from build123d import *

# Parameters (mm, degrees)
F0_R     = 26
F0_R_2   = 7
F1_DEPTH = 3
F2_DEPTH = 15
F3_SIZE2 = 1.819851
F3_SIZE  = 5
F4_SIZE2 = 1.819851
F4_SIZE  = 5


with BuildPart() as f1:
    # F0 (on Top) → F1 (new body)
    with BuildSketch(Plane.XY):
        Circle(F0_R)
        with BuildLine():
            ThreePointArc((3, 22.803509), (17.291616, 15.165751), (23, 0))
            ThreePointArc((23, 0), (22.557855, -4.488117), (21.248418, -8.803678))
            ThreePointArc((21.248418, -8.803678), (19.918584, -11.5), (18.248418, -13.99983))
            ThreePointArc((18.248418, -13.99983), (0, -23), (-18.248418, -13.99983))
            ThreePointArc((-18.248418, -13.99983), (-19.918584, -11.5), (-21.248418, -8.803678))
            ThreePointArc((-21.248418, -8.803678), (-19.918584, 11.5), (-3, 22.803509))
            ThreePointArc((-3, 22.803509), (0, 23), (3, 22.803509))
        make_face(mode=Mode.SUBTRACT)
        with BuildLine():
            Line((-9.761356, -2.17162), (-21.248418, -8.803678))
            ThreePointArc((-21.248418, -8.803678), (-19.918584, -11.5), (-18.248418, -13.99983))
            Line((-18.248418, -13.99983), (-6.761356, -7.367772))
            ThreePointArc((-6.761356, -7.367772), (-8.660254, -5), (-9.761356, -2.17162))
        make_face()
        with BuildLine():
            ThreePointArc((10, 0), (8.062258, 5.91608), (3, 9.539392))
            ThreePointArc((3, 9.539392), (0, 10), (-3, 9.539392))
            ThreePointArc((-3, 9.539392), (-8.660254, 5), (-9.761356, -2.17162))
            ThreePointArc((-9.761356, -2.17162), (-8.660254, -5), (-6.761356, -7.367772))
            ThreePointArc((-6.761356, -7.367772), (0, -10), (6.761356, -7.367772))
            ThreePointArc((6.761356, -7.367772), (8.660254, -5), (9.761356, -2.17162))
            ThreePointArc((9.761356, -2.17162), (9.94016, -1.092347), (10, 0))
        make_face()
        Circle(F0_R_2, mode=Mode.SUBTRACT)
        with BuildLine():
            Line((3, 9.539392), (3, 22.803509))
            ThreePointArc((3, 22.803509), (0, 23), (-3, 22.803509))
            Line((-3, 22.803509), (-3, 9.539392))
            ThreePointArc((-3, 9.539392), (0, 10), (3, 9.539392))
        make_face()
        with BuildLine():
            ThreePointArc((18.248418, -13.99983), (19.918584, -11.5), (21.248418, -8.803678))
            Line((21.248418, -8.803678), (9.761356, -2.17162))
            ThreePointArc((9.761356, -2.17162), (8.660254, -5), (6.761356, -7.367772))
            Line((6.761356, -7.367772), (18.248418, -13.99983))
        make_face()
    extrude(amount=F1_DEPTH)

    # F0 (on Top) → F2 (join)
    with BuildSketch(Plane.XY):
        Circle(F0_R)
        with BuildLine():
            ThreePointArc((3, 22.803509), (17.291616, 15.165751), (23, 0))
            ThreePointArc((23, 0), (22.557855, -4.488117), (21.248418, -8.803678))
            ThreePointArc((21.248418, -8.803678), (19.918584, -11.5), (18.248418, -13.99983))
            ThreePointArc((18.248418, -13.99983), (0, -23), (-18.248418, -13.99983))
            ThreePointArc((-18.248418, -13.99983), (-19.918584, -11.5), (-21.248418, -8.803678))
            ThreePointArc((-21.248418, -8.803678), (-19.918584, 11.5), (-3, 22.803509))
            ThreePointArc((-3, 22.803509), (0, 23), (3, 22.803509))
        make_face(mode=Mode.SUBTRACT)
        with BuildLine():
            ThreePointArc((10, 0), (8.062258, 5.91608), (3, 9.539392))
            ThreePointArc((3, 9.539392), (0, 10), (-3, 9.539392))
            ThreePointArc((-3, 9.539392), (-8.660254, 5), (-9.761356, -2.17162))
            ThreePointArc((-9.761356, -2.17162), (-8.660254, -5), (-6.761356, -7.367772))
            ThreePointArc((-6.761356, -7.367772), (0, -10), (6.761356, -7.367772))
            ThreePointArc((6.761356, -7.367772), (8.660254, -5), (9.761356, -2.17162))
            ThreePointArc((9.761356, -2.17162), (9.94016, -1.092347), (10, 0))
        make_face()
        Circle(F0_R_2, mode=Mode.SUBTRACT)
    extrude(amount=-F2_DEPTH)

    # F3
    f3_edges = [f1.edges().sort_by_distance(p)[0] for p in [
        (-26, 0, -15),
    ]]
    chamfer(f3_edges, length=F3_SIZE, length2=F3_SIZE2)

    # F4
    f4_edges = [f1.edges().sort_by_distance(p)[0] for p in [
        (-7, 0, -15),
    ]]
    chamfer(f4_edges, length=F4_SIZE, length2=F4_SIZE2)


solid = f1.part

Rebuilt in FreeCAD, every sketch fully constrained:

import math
import FreeCAD as App
import Part
import Sketcher
from FreeCAD import Vector
Q = App.Units.Quantity


def edges_at(feature, points):
    """Names of the edges that pass closest to the given points."""
    edges = feature.Shape.Edges
    near = lambda p: min(range(len(edges)), key=lambda i: edges[i].distToShape(Part.Vertex(*p))[0])
    return sorted({f"Edge{near(p) + 1}" for p in points})

doc = App.newDocument("Part")
body = doc.addObject("PartDesign::Body", "Body")

# Sketch on XY plane
sketch1 = body.newObject("Sketcher::SketchObject", "Sketch")
sketch1.AttachmentSupport = (doc.getObject("XY_Plane"), [""])
sketch1.MapMode = "FlatFace"
sketch1.addGeometry(Part.Circle(Vector(0, 0, 0), Vector(0, 0, 1), 26), False)
sketch1.addGeometry(Part.Circle(Vector(0, 0, 0), Vector(0, 0, 1), 7), False)
sketch1.addGeometry(Part.ArcOfCircle(Part.Circle(Vector(0.000001, -0.000001, 0), Vector(0, 0, 1), 23.000001), math.radians(97.494721), math.radians(202.505279)), False)
sketch1.addGeometry(Part.LineSegment(Vector(-3, 22.803509, 0), Vector(-3, 9.539392, 0)), False)
sketch1.addGeometry(Part.ArcOfCircle(Part.Circle(Vector(0, 0, 0), Vector(0, 0, 1), 10), math.radians(107.457604), math.radians(192.542395)), False)
sketch1.addGeometry(Part.LineSegment(Vector(-9.761356, -2.17162, 0), Vector(-21.248418, -8.803678, 0)), False)
sketch1.addGeometry(Part.ArcOfCircle(Part.Circle(Vector(-0.000002, -0.000001, 0), Vector(0, 0, 1), 23.000002), math.radians(0.000003), math.radians(82.505279)), False)
sketch1.addGeometry(Part.ArcOfCircle(Part.Circle(Vector(0.00001, -0.000003, 0), Vector(0, 0, 1), 22.99999), math.radians(-22.505285), math.radians(0.000007)), False)
sketch1.addGeometry(Part.LineSegment(Vector(21.248418, -8.803678, 0), Vector(9.761356, -2.17162, 0)), False)
sketch1.addGeometry(Part.ArcOfCircle(Part.Circle(Vector(0.000005, -0.000002, 0), Vector(0, 0, 1), 9.999995), math.radians(-12.542395), math.radians(0.000009)), False)
sketch1.addGeometry(Part.ArcOfCircle(Part.Circle(Vector(0.000001, 0.000001, 0), Vector(0, 0, 1), 9.999999), math.radians(-0.000006), math.radians(72.542403)), False)
sketch1.addGeometry(Part.LineSegment(Vector(3, 9.539392, 0), Vector(3, 22.803509, 0)), False)
sketch1.addGeometry(Part.ArcOfCircle(Part.Circle(Vector(0, 0, 0), Vector(0, 0, 1), 23), math.radians(-142.505284), math.radians(-37.494716)), False)
sketch1.addGeometry(Part.LineSegment(Vector(-18.248418, -13.99983, 0), Vector(-6.761356, -7.367772, 0)), False)
sketch1.addGeometry(Part.ArcOfCircle(Part.Circle(Vector(0, 0, 0), Vector(0, 0, 1), 10), math.radians(-132.542399), math.radians(-47.457601)), False)
sketch1.addGeometry(Part.LineSegment(Vector(6.761356, -7.367772, 0), Vector(18.248418, -13.99983, 0)), False)
sketch1.addConstraint(Sketcher.Constraint("Coincident", 2, 1, 3, 1))
sketch1.addConstraint(Sketcher.Constraint("Coincident", 3, 2, 4, 1))
sketch1.addConstraint(Sketcher.Constraint("Coincident", 4, 2, 5, 1))
sketch1.addConstraint(Sketcher.Constraint("Coincident", 5, 2, 2, 2))
sketch1.addConstraint(Sketcher.Constraint("Tangent", 6, 1, 7, 2))
sketch1.addConstraint(Sketcher.Constraint("Coincident", 7, 1, 8, 1))
sketch1.addConstraint(Sketcher.Constraint("Coincident", 8, 2, 9, 1))
sketch1.addConstraint(Sketcher.Constraint("Tangent", 9, 2, 10, 1))
sketch1.addConstraint(Sketcher.Constraint("Coincident", 10, 2, 11, 1))
sketch1.addConstraint(Sketcher.Constraint("Coincident", 11, 2, 6, 2))
sketch1.addConstraint(Sketcher.Constraint("Coincident", 12, 1, 13, 1))
sketch1.addConstraint(Sketcher.Constraint("Coincident", 13, 2, 14, 1))
sketch1.addConstraint(Sketcher.Constraint("Coincident", 14, 2, 15, 1))
sketch1.addConstraint(Sketcher.Constraint("Coincident", 15, 2, 12, 2))
sketch1.addConstraint(Sketcher.Constraint("Vertical", 3))
sketch1.addConstraint(Sketcher.Constraint("Vertical", 11))
sketch1.addConstraint(Sketcher.Constraint("Coincident", 0, 3, -1, 1))
sketch1.addConstraint(Sketcher.Constraint("Coincident", 1, 3, -1, 1))
sketch1.addConstraint(Sketcher.Constraint("Coincident", 2, 3, -1, 1))
sketch1.addConstraint(Sketcher.Constraint("Coincident", 4, 3, -1, 1))
sketch1.addConstraint(Sketcher.Constraint("Coincident", 6, 3, -1, 1))
sketch1.addConstraint(Sketcher.Constraint("Coincident", 9, 3, -1, 1))
sketch1.addConstraint(Sketcher.Constraint("Coincident", 12, 3, -1, 1))
sketch1.addConstraint(Sketcher.Constraint("Coincident", 14, 3, -1, 1))
sketch1.addConstraint(Sketcher.Constraint("Equal", 2, 6))
sketch1.addConstraint(Sketcher.Constraint("Equal", 4, 10))
sketch1.addConstraint(Sketcher.Constraint("Equal", 6, 12))
sketch1.addConstraint(Sketcher.Constraint("Equal", 10, 14))
sketch1.addConstraint(Sketcher.Constraint("Symmetric", 5, 2, 7, 1, -2))
sketch1.addConstraint(Sketcher.Constraint("Symmetric", 4, 2, 8, 2, -2))
sketch1.addConstraint(Sketcher.Constraint("PointOnObject", 6, 1, -1))
sketch1.addConstraint(Sketcher.Constraint("PointOnObject", 9, 2, -1))
sketch1.addConstraint(Sketcher.Constraint("Parallel", 5, 13))
sketch1.addConstraint(Sketcher.Constraint("Parallel", 8, 15))
sketch1.addConstraint(Sketcher.Constraint("Horizontal", 3, 2, 10, 2))
sketch1.addConstraint(Sketcher.Constraint("Horizontal", 13, 2, 14, 2))
sketch1.addConstraint(Sketcher.Constraint("Equal", 8, 13))
sketch1.addConstraint(Sketcher.Constraint("Diameter", 0, Q("52 mm")))
sketch1.addConstraint(Sketcher.Constraint("Diameter", 1, Q("14 mm")))
sketch1.addConstraint(Sketcher.Constraint("Radius", 2, Q("23.000001 mm")))
sketch1.addConstraint(Sketcher.Constraint("Radius", 4, Q("10 mm")))
sketch1.addConstraint(Sketcher.Constraint("Angle", 5, Q("-150.000001 deg")))
sketch1.addConstraint(Sketcher.Constraint("DistanceX", 2, 1, -1, 1, Q("3 mm")))
sketch1.addConstraint(Sketcher.Constraint("DistanceX", 5, 2, 12, 1, Q("3 mm")))
pad1 = body.newObject("PartDesign::Pad", "Pad")
pad1.Profile = sketch1
pad1.Length = 3

# Sketch on XY plane
sketch2 = body.newObject("Sketcher::SketchObject", "Sketch001")
sketch2.AttachmentSupport = (doc.getObject("XY_Plane"), [""])
sketch2.MapMode = "FlatFace"
sketch2.addGeometry(Part.Circle(Vector(0, 0, 0), Vector(0, 0, 1), 26), False)
sketch2.addGeometry(Part.ArcOfCircle(Part.Circle(Vector(0, -0.000058, 0), Vector(0, 0, 1), 23.000058), math.radians(82.505301), math.radians(97.494699)), False)
sketch2.addGeometry(Part.ArcOfCircle(Part.Circle(Vector(-0.000002, -0.000001, 0), Vector(0, 0, 1), 23.000002), math.radians(0.000003), math.radians(82.505279)), False)
sketch2.addGeometry(Part.ArcOfCircle(Part.Circle(Vector(0.00001, -0.000003, 0), Vector(0, 0, 1), 22.99999), math.radians(-22.505285), math.radians(0.000007)), False)
sketch2.addGeometry(Part.ArcOfCircle(Part.Circle(Vector(-0.000039, 0.000024, 0), Vector(0, 0, 1), 23.000046), math.radians(-37.494704), math.radians(-22.5053)), False)
sketch2.addGeometry(Part.ArcOfCircle(Part.Circle(Vector(0, 0, 0), Vector(0, 0, 1), 23), math.radians(-142.505284), math.radians(-37.494716)), False)
sketch2.addGeometry(Part.ArcOfCircle(Part.Circle(Vector(0.000039, 0.000024, 0), Vector(0, 0, 1), 23.000046), math.radians(-157.4947), math.radians(-142.505296)), False)
sketch2.addGeometry(Part.ArcOfCircle(Part.Circle(Vector(0.000001, -0.000001, 0), Vector(0, 0, 1), 23.000001), math.radians(97.494721), math.radians(202.505279)), False)
sketch2.addGeometry(Part.ArcOfCircle(Part.Circle(Vector(0.000001, 0.000001, 0), Vector(0, 0, 1), 9.999999), math.radians(-0.000006), math.radians(72.542403)), False)
sketch2.addGeometry(Part.ArcOfCircle(Part.Circle(Vector(0, 0, 0), Vector(0, 0, 1), 10), math.radians(72.542396), math.radians(107.457604)), False)
sketch2.addGeometry(Part.ArcOfCircle(Part.Circle(Vector(0, 0, 0), Vector(0, 0, 1), 10), math.radians(107.457604), math.radians(192.542395)), False)
sketch2.addGeometry(Part.ArcOfCircle(Part.Circle(Vector(0.000002, 0.000002, 0), Vector(0, 0, 1), 10.000003), math.radians(-167.457595), math.radians(-132.542401)), False)
sketch2.addGeometry(Part.ArcOfCircle(Part.Circle(Vector(0, 0, 0), Vector(0, 0, 1), 10), math.radians(-132.542399), math.radians(-47.457601)), False)
sketch2.addGeometry(Part.ArcOfCircle(Part.Circle(Vector(-0.000002, 0.000002, 0), Vector(0, 0, 1), 10.000003), math.radians(-47.457599), math.radians(-12.542405)), False)
sketch2.addGeometry(Part.ArcOfCircle(Part.Circle(Vector(0.000005, -0.000002, 0), Vector(0, 0, 1), 9.999995), math.radians(-12.542395), math.radians(0.000009)), False)
sketch2.addGeometry(Part.Circle(Vector(0, 0, 0), Vector(0, 0, 1), 7), False)
sketch2.addConstraint(Sketcher.Constraint("Coincident", 1, 1, 2, 2))
sketch2.addConstraint(Sketcher.Constraint("Coincident", 2, 1, 3, 2))
sketch2.addConstraint(Sketcher.Constraint("Coincident", 3, 1, 4, 2))
sketch2.addConstraint(Sketcher.Constraint("Coincident", 4, 1, 5, 2))
sketch2.addConstraint(Sketcher.Constraint("Coincident", 5, 1, 6, 2))
sketch2.addConstraint(Sketcher.Constraint("Coincident", 6, 1, 7, 2))
sketch2.addConstraint(Sketcher.Constraint("Coincident", 7, 1, 1, 2))
sketch2.addConstraint(Sketcher.Constraint("Coincident", 8, 2, 9, 1))
sketch2.addConstraint(Sketcher.Constraint("Coincident", 9, 2, 10, 1))
sketch2.addConstraint(Sketcher.Constraint("Coincident", 10, 2, 11, 1))
sketch2.addConstraint(Sketcher.Constraint("Coincident", 11, 2, 12, 1))
sketch2.addConstraint(Sketcher.Constraint("Coincident", 12, 2, 13, 1))
sketch2.addConstraint(Sketcher.Constraint("Coincident", 13, 2, 14, 1))
sketch2.addConstraint(Sketcher.Constraint("Coincident", 14, 2, 8, 1))
sketch2.addConstraint(Sketcher.Constraint("Coincident", 0, 3, -1, 1))
sketch2.addConstraint(Sketcher.Constraint("Coincident", 2, 3, -1, 1))
sketch2.addConstraint(Sketcher.Constraint("Coincident", 5, 3, -1, 1))
sketch2.addConstraint(Sketcher.Constraint("Coincident", 7, 3, -1, 1))
sketch2.addConstraint(Sketcher.Constraint("Coincident", 8, 3, -1, 1))
sketch2.addConstraint(Sketcher.Constraint("Coincident", 9, 3, -1, 1))
sketch2.addConstraint(Sketcher.Constraint("Coincident", 10, 3, -1, 1))
sketch2.addConstraint(Sketcher.Constraint("Coincident", 11, 3, -1, 1))
sketch2.addConstraint(Sketcher.Constraint("Coincident", 12, 3, -1, 1))
sketch2.addConstraint(Sketcher.Constraint("Coincident", 13, 3, -1, 1))
sketch2.addConstraint(Sketcher.Constraint("Coincident", 15, 3, -1, 1))
sketch2.addConstraint(Sketcher.Constraint("PointOnObject", 1, 3, -2))
sketch2.addConstraint(Sketcher.Constraint("PointOnObject", 14, 3, -1))
sketch2.addConstraint(Sketcher.Constraint("PointOnObject", 2, 1, -1))
sketch2.addConstraint(Sketcher.Constraint("PointOnObject", 14, 2, -1))
sketch2.addConstraint(Sketcher.Constraint("Diameter", 0, Q("52 mm")))
sketch2.addConstraint(Sketcher.Constraint("Diameter", 15, Q("14 mm")))
sketch2.addConstraint(Sketcher.Constraint("Radius", 2, Q("23.000002 mm")))
sketch2.addConstraint(Sketcher.Constraint("Radius", 5, Q("23 mm")))
sketch2.addConstraint(Sketcher.Constraint("Radius", 8, Q("9.999999 mm")))
sketch2.addConstraint(Sketcher.Constraint("DistanceX", -1, 1, 1, 1, Q("3 mm")))
sketch2.addConstraint(Sketcher.Constraint("DistanceX", 7, 1, -1, 1, Q("3 mm")))
sketch2.addConstraint(Sketcher.Constraint("DistanceX", -1, 1, 8, 2, Q("3 mm")))
sketch2.addConstraint(Sketcher.Constraint("DistanceX", 9, 2, -1, 1, Q("3 mm")))
sketch2.addConstraint(Sketcher.Constraint("DistanceX", 4, 1, 3, 1, Q("3 mm")))
sketch2.addConstraint(Sketcher.Constraint("DistanceX", 6, 1, 5, 1, Q("3 mm")))
sketch2.addConstraint(Sketcher.Constraint("DistanceX", 10, 2, 11, 2, Q("3 mm")))
sketch2.addConstraint(Sketcher.Constraint("DistanceX", 12, 2, 13, 2, Q("3 mm")))
sketch2.addConstraint(Sketcher.Constraint("Radius", 3, Q("22.99999 mm")))
sketch2.addConstraint(Sketcher.Constraint("Radius", 1, Q("23.000058 mm")))
sketch2.addConstraint(Sketcher.Constraint("Radius", 4, Q("23.000046 mm")))
sketch2.addConstraint(Sketcher.Constraint("Radius", 6, Q("23.000046 mm")))
sketch2.addConstraint(Sketcher.Constraint("DistanceY", 4, 1, -1, 1, Q("13.99983 mm")))
sketch2.addConstraint(Sketcher.Constraint("DistanceX", 5, 1, -1, 1, Q("18.248418 mm")))
sketch2.addConstraint(Sketcher.Constraint("DistanceY", 10, 2, -1, 1, Q("2.17162 mm")))
sketch2.addConstraint(Sketcher.Constraint("DistanceY", 13, 2, -1, 1, Q("2.17162 mm")))
sketch2.addConstraint(Sketcher.Constraint("DistanceX", 4, 3, 1, 1, Q("3.000039 mm")))
pad2 = body.newObject("PartDesign::Pad", "Pad001")
pad2.Profile = sketch2
pad2.Length = 15
pad2.Reversed = True
doc.recompute()

chamfer = body.newObject("PartDesign::Chamfer", "Chamfer")
chamfer.Base = (pad2, edges_at(pad2, [(-26, 0, -15)]))
chamfer.ChamferType = "Two distances"
chamfer.Size = 5
chamfer.Size2 = 1.819851
chamfer.FlipDirection = True
doc.recompute()

chamfer2 = body.newObject("PartDesign::Chamfer", "Chamfer001")
chamfer2.Base = (chamfer, edges_at(chamfer, [(-7, 0, -15)]))
chamfer2.ChamferType = "Two distances"
chamfer2.Size = 5
chamfer2.Size2 = 1.819851

doc.recompute()
